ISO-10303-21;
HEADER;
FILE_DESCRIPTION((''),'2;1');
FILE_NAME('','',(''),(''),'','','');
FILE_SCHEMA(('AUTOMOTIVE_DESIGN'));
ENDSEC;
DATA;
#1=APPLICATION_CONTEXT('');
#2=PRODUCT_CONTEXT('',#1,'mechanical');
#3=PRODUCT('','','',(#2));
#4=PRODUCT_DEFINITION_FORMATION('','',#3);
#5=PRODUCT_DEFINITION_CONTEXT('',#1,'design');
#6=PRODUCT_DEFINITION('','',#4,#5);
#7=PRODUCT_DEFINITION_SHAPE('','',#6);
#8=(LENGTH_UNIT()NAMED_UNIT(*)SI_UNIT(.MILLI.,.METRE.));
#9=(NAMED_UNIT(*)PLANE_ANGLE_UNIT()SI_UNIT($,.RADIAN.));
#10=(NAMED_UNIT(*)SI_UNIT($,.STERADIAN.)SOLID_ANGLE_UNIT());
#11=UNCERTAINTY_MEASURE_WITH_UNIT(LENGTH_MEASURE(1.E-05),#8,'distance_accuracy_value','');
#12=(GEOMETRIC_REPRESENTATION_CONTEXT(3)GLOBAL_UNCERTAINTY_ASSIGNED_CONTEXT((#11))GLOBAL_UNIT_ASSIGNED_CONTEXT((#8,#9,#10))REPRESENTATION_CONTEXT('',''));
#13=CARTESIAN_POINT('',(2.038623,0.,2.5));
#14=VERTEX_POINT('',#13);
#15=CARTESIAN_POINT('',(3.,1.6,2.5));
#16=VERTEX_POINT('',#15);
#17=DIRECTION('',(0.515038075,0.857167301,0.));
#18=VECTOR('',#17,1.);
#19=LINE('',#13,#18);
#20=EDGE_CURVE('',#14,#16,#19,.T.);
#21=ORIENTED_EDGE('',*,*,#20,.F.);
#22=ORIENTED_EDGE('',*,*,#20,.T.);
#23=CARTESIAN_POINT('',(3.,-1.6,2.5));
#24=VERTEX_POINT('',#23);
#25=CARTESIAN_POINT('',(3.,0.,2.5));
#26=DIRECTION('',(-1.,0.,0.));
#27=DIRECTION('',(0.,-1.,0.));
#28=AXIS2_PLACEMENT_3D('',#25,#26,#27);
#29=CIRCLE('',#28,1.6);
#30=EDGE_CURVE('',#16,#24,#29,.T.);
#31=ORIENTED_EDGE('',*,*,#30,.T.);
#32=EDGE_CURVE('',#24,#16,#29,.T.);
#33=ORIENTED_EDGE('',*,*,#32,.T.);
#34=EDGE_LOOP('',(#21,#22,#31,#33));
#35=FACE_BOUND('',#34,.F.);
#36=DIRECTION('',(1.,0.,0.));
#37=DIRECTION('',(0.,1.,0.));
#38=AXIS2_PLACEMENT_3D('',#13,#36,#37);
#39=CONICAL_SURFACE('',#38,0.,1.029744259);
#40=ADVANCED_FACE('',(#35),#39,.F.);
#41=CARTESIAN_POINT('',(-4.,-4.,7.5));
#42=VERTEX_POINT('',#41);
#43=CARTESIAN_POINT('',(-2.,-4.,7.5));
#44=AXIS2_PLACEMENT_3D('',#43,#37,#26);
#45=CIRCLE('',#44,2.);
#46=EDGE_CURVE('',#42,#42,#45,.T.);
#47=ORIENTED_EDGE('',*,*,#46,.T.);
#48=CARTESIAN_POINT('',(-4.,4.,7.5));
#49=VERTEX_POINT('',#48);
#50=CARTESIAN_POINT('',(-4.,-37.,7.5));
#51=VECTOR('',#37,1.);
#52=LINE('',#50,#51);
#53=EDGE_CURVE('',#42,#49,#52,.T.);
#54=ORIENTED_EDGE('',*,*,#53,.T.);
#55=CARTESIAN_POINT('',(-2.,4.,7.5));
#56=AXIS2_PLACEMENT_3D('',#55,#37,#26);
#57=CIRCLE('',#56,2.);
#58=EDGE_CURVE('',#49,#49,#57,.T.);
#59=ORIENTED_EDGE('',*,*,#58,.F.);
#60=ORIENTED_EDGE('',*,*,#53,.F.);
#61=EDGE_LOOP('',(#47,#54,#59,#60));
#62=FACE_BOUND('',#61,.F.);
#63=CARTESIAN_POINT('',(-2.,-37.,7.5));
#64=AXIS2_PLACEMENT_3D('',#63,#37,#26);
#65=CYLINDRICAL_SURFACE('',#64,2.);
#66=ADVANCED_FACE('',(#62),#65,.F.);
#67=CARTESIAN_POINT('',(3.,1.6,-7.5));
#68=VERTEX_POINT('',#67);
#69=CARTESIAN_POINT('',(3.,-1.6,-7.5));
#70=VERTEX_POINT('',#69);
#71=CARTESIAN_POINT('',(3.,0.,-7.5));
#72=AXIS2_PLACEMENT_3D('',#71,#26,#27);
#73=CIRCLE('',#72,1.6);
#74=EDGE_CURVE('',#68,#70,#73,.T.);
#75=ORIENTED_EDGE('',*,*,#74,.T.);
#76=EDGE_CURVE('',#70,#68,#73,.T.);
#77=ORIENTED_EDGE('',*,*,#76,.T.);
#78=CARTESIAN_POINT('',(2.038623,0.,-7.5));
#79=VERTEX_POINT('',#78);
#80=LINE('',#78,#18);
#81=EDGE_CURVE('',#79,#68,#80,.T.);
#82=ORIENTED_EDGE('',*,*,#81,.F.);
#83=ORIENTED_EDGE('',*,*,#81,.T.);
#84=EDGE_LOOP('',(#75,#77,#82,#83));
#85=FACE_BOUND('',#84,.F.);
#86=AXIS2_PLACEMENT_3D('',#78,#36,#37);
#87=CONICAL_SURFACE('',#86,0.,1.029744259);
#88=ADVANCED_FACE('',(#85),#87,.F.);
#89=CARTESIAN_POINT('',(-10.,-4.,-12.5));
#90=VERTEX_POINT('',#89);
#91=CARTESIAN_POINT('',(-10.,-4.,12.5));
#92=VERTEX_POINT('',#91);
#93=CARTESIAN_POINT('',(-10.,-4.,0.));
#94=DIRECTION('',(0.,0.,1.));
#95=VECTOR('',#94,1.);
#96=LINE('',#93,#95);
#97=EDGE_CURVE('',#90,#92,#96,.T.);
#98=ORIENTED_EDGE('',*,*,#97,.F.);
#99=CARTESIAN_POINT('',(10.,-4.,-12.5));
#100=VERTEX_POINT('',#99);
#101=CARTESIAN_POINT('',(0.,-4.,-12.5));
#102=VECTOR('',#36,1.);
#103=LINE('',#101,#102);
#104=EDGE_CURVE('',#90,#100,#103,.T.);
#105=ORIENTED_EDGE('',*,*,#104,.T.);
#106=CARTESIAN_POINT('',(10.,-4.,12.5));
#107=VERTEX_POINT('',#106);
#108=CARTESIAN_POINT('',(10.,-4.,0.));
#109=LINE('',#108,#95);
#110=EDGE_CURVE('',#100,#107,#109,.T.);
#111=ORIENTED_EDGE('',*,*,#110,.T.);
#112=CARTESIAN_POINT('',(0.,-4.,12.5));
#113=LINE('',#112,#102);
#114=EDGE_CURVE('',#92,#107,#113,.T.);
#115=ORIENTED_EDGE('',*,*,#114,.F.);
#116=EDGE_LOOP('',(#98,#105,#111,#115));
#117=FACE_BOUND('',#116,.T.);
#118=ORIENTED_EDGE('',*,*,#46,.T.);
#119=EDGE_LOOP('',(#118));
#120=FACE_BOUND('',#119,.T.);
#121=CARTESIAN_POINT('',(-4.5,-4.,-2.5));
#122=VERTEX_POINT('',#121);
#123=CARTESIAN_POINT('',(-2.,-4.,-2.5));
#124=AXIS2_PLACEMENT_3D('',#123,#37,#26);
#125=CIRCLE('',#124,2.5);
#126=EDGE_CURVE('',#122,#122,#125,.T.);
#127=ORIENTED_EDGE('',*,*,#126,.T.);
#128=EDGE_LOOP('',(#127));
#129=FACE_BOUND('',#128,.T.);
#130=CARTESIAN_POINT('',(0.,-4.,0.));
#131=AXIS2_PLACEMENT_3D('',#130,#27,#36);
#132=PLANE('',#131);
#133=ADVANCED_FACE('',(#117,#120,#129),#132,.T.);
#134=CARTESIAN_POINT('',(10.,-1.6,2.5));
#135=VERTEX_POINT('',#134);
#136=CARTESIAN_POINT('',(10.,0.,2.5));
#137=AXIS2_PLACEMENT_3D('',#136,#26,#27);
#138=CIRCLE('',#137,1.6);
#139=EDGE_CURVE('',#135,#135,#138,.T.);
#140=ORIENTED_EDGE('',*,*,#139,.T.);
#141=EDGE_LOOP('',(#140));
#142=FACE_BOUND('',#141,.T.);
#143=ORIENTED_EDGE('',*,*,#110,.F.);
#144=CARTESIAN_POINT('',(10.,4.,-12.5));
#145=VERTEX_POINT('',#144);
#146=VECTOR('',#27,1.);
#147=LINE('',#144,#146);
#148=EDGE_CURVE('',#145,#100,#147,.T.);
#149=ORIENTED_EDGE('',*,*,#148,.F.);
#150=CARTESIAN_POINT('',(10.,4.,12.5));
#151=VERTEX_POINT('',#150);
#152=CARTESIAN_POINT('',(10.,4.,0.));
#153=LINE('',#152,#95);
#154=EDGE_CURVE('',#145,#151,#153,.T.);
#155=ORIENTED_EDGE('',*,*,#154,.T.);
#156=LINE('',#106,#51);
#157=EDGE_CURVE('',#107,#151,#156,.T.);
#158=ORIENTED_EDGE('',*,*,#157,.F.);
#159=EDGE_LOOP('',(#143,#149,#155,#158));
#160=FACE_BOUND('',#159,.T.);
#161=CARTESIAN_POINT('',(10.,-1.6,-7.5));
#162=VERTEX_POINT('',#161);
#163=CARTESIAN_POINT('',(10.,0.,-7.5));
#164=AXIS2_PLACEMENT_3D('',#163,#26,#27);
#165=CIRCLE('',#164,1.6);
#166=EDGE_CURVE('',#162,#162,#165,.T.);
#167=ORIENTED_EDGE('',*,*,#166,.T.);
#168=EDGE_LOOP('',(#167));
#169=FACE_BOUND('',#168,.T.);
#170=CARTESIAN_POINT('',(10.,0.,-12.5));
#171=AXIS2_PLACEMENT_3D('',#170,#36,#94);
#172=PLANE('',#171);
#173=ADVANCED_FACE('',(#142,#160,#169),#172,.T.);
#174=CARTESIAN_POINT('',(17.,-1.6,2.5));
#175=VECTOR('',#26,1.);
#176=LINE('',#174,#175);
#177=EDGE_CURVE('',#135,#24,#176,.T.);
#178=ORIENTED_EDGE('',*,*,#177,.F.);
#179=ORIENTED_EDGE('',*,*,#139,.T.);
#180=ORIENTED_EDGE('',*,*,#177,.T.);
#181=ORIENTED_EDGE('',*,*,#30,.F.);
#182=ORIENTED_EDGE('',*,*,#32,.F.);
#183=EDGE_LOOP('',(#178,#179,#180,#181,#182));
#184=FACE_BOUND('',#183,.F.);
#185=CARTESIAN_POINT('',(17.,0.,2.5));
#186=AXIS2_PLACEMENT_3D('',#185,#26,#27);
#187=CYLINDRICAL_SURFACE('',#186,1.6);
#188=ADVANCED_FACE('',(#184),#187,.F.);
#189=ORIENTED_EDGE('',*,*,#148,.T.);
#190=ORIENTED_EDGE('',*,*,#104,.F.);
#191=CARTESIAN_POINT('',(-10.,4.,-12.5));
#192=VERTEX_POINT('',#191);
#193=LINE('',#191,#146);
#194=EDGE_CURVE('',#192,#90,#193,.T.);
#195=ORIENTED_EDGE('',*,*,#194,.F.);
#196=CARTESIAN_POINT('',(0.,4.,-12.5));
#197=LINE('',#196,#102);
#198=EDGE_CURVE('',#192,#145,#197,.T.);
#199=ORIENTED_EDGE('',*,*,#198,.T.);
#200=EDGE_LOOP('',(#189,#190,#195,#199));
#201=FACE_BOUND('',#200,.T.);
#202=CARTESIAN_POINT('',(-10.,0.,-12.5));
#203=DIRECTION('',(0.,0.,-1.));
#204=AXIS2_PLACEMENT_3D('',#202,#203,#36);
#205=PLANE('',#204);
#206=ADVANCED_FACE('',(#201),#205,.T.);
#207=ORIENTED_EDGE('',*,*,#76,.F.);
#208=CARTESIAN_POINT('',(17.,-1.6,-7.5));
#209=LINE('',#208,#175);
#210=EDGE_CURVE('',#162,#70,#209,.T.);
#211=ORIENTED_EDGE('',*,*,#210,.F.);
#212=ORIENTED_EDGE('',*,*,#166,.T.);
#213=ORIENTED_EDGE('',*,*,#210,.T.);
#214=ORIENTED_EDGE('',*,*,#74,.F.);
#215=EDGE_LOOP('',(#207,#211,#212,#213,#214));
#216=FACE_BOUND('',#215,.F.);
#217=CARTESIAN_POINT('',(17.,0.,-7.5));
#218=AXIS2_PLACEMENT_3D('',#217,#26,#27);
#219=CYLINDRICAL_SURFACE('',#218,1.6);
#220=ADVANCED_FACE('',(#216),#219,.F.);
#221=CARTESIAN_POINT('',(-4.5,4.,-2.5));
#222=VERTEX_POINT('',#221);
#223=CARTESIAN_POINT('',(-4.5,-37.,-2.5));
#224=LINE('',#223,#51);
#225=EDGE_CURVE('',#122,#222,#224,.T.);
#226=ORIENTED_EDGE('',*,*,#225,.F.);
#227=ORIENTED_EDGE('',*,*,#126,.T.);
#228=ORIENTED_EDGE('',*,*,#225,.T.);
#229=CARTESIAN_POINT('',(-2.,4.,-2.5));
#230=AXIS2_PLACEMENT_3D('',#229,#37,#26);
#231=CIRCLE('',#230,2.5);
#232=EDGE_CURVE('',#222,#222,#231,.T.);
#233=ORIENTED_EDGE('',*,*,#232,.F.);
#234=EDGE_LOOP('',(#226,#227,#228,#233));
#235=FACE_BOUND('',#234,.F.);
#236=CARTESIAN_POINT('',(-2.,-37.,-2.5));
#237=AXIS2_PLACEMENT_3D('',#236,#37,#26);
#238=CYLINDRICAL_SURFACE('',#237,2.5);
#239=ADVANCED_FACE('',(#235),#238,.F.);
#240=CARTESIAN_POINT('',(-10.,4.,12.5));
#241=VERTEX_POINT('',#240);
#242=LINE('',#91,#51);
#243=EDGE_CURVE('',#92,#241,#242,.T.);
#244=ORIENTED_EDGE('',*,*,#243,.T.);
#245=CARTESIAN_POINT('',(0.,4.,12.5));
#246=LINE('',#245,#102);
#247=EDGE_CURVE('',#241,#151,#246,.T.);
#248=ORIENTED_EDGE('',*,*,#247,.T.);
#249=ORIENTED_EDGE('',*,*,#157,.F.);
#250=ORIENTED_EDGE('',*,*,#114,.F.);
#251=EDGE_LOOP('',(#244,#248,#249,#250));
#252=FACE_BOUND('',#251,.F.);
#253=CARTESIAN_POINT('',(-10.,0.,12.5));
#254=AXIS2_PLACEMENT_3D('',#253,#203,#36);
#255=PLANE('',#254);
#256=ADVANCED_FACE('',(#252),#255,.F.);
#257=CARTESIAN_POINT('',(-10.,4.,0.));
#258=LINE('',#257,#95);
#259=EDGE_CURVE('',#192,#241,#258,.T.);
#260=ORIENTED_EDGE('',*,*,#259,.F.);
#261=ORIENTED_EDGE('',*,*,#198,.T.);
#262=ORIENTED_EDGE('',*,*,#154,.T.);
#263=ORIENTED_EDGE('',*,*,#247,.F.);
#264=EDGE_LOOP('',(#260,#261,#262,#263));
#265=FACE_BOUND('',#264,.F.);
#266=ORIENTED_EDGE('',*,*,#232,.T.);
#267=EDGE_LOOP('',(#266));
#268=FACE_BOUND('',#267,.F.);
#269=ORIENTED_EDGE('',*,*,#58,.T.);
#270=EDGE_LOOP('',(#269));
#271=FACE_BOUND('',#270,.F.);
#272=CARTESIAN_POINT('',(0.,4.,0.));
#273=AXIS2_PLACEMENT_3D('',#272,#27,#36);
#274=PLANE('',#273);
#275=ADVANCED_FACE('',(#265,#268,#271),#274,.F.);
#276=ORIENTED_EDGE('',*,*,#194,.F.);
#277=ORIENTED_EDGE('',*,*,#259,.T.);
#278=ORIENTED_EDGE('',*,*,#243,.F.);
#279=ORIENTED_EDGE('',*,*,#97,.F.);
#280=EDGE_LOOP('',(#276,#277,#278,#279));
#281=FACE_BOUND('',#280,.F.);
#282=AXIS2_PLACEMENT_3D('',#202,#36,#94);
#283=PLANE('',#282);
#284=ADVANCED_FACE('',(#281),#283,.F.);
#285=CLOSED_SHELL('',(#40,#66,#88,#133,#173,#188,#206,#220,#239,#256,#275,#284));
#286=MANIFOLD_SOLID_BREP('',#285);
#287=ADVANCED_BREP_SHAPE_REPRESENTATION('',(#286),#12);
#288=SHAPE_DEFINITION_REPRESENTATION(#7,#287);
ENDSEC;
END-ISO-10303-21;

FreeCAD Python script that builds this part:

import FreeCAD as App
import Part
import Sketcher
Q = App.Units.Quantity


def add_polygon(sketch, points):
    """Adds a closed chain of lines whose ends are joined by coincident constraints."""
    first, n = sketch.GeometryCount, len(points)
    for a, b in zip(points, points[1:] + points[:1]):
        sketch.addGeometry(Part.LineSegment(App.Vector(*a, 0), App.Vector(*b, 0)), False)
    for i in range(n):
        sketch.addConstraint(Sketcher.Constraint("Coincident", first + i, 2, first + (i + 1) % n, 1))

doc = App.newDocument("Part")
body = doc.addObject("PartDesign::Body", "Body")

# Sketch on XZ plane
sketch1 = body.newObject("Sketcher::SketchObject", "Sketch")
sketch1.AttachmentSupport = (doc.getObject("XZ_Plane"), [""])
sketch1.MapMode = "FlatFace"
add_polygon(sketch1, [(-10, 12), (-10, -12), (10, -12), (10, 12)])  # lines 0-3
sketch1.addConstraint([
    Sketcher.Constraint("Vertical", 0),
    Sketcher.Constraint("Horizontal", 1),
    Sketcher.Constraint("Vertical", 2),
    Sketcher.Constraint("Horizontal", 3),
    Sketcher.Constraint("Symmetric", 0, 2, 2, 2, -1, 1),
    Sketcher.Constraint("DistanceX", 1, 1, 1, 2, Q("20 mm")),
    Sketcher.Constraint("DistanceY", 0, 2, 0, 1, Q("25 mm")),
])
pad1 = body.newObject("PartDesign::Pad", "Pad")
pad1.Profile = sketch1
pad1.Length = 8
pad1.Midplane = True

# Sketch on XZ plane
sketch2 = body.newObject("Sketcher::SketchObject", "Sketch001")
sketch2.AttachmentSupport = (doc.getObject("XZ_Plane"), [""])
sketch2.MapMode = "FlatFace"
sketch2.AttachmentOffset = App.Placement(App.Vector(0, 0, 4), App.Rotation())
sketch2.addGeometry(Part.Circle(App.Vector(-2, 7.5, 0), App.Vector(0, 0, 1), 2), False)
sketch2.addConstraint([
    Sketcher.Constraint("Diameter", 0, Q("4 mm")),
    Sketcher.Constraint("DistanceX", 0, 3, -1, 1, Q("2 mm")),
    Sketcher.Constraint("DistanceY", -1, 1, 0, 3, Q("7.5 mm")),
])
doc.recompute()
hole = body.newObject("PartDesign::Hole", "Hole")
hole.Profile = sketch2
hole.ThreadType = "None"
hole.Diameter = 4
hole.DepthType = "ThroughAll"

# Sketch on XZ plane
sketch3 = body.newObject("Sketcher::SketchObject", "Sketch002")
sketch3.AttachmentSupport = (doc.getObject("XZ_Plane"), [""])
sketch3.MapMode = "FlatFace"
sketch3.AttachmentOffset = App.Placement(App.Vector(0, 0, 4), App.Rotation())
sketch3.addGeometry(Part.Circle(App.Vector(-2, -2.5, 0), App.Vector(0, 0, 1), 2.5), False)
sketch3.addConstraint([
    Sketcher.Constraint("Diameter", 0, Q("5 mm")),
    Sketcher.Constraint("DistanceX", 0, 3, -1, 1, Q("2 mm")),
    Sketcher.Constraint("DistanceY", 0, 3, -1, 1, Q("2.5 mm")),
])
doc.recompute()
hole2 = body.newObject("PartDesign::Hole", "Hole001")
hole2.Profile = sketch3
hole2.ThreadType = "None"
hole2.Diameter = 5
hole2.DepthType = "ThroughAll"

# Sketch on YZ plane
sketch4 = body.newObject("Sketcher::SketchObject", "Sketch003")
sketch4.AttachmentSupport = (doc.getObject("YZ_Plane"), [""])
sketch4.MapMode = "FlatFace"
sketch4.AttachmentOffset = App.Placement(App.Vector(0, 0, 10), App.Rotation())
sketch4.addGeometry([
    Part.Circle(App.Vector(0, 2.5, 0), App.Vector(0, 0, 1), 1.6),
    Part.Circle(App.Vector(0, -7.5, 0), App.Vector(0, 0, 1), 1.6),
], False)
sketch4.addConstraint([
    Sketcher.Constraint("Equal", 0, 1),
    Sketcher.Constraint("PointOnObject", 0, 3, -2),
    Sketcher.Constraint("PointOnObject", 1, 3, -2),
    Sketcher.Constraint("Diameter", 0, Q("3.2 mm")),
    Sketcher.Constraint("DistanceY", 1, 3, 0, 3, Q("10 mm")),
    Sketcher.Constraint("DistanceY", -1, 1, 0, 3, Q("2.5 mm")),
])
doc.recompute()
hole3 = body.newObject("PartDesign::Hole", "Hole002")
hole3.Profile = sketch4
hole3.ThreadType = "None"
hole3.Diameter = 3.2
hole3.DepthType = "Dimension"
hole3.Depth = 7
hole3.DrillPoint = "Angled"
hole3.DrillPointAngle = 118

doc.recompute()
